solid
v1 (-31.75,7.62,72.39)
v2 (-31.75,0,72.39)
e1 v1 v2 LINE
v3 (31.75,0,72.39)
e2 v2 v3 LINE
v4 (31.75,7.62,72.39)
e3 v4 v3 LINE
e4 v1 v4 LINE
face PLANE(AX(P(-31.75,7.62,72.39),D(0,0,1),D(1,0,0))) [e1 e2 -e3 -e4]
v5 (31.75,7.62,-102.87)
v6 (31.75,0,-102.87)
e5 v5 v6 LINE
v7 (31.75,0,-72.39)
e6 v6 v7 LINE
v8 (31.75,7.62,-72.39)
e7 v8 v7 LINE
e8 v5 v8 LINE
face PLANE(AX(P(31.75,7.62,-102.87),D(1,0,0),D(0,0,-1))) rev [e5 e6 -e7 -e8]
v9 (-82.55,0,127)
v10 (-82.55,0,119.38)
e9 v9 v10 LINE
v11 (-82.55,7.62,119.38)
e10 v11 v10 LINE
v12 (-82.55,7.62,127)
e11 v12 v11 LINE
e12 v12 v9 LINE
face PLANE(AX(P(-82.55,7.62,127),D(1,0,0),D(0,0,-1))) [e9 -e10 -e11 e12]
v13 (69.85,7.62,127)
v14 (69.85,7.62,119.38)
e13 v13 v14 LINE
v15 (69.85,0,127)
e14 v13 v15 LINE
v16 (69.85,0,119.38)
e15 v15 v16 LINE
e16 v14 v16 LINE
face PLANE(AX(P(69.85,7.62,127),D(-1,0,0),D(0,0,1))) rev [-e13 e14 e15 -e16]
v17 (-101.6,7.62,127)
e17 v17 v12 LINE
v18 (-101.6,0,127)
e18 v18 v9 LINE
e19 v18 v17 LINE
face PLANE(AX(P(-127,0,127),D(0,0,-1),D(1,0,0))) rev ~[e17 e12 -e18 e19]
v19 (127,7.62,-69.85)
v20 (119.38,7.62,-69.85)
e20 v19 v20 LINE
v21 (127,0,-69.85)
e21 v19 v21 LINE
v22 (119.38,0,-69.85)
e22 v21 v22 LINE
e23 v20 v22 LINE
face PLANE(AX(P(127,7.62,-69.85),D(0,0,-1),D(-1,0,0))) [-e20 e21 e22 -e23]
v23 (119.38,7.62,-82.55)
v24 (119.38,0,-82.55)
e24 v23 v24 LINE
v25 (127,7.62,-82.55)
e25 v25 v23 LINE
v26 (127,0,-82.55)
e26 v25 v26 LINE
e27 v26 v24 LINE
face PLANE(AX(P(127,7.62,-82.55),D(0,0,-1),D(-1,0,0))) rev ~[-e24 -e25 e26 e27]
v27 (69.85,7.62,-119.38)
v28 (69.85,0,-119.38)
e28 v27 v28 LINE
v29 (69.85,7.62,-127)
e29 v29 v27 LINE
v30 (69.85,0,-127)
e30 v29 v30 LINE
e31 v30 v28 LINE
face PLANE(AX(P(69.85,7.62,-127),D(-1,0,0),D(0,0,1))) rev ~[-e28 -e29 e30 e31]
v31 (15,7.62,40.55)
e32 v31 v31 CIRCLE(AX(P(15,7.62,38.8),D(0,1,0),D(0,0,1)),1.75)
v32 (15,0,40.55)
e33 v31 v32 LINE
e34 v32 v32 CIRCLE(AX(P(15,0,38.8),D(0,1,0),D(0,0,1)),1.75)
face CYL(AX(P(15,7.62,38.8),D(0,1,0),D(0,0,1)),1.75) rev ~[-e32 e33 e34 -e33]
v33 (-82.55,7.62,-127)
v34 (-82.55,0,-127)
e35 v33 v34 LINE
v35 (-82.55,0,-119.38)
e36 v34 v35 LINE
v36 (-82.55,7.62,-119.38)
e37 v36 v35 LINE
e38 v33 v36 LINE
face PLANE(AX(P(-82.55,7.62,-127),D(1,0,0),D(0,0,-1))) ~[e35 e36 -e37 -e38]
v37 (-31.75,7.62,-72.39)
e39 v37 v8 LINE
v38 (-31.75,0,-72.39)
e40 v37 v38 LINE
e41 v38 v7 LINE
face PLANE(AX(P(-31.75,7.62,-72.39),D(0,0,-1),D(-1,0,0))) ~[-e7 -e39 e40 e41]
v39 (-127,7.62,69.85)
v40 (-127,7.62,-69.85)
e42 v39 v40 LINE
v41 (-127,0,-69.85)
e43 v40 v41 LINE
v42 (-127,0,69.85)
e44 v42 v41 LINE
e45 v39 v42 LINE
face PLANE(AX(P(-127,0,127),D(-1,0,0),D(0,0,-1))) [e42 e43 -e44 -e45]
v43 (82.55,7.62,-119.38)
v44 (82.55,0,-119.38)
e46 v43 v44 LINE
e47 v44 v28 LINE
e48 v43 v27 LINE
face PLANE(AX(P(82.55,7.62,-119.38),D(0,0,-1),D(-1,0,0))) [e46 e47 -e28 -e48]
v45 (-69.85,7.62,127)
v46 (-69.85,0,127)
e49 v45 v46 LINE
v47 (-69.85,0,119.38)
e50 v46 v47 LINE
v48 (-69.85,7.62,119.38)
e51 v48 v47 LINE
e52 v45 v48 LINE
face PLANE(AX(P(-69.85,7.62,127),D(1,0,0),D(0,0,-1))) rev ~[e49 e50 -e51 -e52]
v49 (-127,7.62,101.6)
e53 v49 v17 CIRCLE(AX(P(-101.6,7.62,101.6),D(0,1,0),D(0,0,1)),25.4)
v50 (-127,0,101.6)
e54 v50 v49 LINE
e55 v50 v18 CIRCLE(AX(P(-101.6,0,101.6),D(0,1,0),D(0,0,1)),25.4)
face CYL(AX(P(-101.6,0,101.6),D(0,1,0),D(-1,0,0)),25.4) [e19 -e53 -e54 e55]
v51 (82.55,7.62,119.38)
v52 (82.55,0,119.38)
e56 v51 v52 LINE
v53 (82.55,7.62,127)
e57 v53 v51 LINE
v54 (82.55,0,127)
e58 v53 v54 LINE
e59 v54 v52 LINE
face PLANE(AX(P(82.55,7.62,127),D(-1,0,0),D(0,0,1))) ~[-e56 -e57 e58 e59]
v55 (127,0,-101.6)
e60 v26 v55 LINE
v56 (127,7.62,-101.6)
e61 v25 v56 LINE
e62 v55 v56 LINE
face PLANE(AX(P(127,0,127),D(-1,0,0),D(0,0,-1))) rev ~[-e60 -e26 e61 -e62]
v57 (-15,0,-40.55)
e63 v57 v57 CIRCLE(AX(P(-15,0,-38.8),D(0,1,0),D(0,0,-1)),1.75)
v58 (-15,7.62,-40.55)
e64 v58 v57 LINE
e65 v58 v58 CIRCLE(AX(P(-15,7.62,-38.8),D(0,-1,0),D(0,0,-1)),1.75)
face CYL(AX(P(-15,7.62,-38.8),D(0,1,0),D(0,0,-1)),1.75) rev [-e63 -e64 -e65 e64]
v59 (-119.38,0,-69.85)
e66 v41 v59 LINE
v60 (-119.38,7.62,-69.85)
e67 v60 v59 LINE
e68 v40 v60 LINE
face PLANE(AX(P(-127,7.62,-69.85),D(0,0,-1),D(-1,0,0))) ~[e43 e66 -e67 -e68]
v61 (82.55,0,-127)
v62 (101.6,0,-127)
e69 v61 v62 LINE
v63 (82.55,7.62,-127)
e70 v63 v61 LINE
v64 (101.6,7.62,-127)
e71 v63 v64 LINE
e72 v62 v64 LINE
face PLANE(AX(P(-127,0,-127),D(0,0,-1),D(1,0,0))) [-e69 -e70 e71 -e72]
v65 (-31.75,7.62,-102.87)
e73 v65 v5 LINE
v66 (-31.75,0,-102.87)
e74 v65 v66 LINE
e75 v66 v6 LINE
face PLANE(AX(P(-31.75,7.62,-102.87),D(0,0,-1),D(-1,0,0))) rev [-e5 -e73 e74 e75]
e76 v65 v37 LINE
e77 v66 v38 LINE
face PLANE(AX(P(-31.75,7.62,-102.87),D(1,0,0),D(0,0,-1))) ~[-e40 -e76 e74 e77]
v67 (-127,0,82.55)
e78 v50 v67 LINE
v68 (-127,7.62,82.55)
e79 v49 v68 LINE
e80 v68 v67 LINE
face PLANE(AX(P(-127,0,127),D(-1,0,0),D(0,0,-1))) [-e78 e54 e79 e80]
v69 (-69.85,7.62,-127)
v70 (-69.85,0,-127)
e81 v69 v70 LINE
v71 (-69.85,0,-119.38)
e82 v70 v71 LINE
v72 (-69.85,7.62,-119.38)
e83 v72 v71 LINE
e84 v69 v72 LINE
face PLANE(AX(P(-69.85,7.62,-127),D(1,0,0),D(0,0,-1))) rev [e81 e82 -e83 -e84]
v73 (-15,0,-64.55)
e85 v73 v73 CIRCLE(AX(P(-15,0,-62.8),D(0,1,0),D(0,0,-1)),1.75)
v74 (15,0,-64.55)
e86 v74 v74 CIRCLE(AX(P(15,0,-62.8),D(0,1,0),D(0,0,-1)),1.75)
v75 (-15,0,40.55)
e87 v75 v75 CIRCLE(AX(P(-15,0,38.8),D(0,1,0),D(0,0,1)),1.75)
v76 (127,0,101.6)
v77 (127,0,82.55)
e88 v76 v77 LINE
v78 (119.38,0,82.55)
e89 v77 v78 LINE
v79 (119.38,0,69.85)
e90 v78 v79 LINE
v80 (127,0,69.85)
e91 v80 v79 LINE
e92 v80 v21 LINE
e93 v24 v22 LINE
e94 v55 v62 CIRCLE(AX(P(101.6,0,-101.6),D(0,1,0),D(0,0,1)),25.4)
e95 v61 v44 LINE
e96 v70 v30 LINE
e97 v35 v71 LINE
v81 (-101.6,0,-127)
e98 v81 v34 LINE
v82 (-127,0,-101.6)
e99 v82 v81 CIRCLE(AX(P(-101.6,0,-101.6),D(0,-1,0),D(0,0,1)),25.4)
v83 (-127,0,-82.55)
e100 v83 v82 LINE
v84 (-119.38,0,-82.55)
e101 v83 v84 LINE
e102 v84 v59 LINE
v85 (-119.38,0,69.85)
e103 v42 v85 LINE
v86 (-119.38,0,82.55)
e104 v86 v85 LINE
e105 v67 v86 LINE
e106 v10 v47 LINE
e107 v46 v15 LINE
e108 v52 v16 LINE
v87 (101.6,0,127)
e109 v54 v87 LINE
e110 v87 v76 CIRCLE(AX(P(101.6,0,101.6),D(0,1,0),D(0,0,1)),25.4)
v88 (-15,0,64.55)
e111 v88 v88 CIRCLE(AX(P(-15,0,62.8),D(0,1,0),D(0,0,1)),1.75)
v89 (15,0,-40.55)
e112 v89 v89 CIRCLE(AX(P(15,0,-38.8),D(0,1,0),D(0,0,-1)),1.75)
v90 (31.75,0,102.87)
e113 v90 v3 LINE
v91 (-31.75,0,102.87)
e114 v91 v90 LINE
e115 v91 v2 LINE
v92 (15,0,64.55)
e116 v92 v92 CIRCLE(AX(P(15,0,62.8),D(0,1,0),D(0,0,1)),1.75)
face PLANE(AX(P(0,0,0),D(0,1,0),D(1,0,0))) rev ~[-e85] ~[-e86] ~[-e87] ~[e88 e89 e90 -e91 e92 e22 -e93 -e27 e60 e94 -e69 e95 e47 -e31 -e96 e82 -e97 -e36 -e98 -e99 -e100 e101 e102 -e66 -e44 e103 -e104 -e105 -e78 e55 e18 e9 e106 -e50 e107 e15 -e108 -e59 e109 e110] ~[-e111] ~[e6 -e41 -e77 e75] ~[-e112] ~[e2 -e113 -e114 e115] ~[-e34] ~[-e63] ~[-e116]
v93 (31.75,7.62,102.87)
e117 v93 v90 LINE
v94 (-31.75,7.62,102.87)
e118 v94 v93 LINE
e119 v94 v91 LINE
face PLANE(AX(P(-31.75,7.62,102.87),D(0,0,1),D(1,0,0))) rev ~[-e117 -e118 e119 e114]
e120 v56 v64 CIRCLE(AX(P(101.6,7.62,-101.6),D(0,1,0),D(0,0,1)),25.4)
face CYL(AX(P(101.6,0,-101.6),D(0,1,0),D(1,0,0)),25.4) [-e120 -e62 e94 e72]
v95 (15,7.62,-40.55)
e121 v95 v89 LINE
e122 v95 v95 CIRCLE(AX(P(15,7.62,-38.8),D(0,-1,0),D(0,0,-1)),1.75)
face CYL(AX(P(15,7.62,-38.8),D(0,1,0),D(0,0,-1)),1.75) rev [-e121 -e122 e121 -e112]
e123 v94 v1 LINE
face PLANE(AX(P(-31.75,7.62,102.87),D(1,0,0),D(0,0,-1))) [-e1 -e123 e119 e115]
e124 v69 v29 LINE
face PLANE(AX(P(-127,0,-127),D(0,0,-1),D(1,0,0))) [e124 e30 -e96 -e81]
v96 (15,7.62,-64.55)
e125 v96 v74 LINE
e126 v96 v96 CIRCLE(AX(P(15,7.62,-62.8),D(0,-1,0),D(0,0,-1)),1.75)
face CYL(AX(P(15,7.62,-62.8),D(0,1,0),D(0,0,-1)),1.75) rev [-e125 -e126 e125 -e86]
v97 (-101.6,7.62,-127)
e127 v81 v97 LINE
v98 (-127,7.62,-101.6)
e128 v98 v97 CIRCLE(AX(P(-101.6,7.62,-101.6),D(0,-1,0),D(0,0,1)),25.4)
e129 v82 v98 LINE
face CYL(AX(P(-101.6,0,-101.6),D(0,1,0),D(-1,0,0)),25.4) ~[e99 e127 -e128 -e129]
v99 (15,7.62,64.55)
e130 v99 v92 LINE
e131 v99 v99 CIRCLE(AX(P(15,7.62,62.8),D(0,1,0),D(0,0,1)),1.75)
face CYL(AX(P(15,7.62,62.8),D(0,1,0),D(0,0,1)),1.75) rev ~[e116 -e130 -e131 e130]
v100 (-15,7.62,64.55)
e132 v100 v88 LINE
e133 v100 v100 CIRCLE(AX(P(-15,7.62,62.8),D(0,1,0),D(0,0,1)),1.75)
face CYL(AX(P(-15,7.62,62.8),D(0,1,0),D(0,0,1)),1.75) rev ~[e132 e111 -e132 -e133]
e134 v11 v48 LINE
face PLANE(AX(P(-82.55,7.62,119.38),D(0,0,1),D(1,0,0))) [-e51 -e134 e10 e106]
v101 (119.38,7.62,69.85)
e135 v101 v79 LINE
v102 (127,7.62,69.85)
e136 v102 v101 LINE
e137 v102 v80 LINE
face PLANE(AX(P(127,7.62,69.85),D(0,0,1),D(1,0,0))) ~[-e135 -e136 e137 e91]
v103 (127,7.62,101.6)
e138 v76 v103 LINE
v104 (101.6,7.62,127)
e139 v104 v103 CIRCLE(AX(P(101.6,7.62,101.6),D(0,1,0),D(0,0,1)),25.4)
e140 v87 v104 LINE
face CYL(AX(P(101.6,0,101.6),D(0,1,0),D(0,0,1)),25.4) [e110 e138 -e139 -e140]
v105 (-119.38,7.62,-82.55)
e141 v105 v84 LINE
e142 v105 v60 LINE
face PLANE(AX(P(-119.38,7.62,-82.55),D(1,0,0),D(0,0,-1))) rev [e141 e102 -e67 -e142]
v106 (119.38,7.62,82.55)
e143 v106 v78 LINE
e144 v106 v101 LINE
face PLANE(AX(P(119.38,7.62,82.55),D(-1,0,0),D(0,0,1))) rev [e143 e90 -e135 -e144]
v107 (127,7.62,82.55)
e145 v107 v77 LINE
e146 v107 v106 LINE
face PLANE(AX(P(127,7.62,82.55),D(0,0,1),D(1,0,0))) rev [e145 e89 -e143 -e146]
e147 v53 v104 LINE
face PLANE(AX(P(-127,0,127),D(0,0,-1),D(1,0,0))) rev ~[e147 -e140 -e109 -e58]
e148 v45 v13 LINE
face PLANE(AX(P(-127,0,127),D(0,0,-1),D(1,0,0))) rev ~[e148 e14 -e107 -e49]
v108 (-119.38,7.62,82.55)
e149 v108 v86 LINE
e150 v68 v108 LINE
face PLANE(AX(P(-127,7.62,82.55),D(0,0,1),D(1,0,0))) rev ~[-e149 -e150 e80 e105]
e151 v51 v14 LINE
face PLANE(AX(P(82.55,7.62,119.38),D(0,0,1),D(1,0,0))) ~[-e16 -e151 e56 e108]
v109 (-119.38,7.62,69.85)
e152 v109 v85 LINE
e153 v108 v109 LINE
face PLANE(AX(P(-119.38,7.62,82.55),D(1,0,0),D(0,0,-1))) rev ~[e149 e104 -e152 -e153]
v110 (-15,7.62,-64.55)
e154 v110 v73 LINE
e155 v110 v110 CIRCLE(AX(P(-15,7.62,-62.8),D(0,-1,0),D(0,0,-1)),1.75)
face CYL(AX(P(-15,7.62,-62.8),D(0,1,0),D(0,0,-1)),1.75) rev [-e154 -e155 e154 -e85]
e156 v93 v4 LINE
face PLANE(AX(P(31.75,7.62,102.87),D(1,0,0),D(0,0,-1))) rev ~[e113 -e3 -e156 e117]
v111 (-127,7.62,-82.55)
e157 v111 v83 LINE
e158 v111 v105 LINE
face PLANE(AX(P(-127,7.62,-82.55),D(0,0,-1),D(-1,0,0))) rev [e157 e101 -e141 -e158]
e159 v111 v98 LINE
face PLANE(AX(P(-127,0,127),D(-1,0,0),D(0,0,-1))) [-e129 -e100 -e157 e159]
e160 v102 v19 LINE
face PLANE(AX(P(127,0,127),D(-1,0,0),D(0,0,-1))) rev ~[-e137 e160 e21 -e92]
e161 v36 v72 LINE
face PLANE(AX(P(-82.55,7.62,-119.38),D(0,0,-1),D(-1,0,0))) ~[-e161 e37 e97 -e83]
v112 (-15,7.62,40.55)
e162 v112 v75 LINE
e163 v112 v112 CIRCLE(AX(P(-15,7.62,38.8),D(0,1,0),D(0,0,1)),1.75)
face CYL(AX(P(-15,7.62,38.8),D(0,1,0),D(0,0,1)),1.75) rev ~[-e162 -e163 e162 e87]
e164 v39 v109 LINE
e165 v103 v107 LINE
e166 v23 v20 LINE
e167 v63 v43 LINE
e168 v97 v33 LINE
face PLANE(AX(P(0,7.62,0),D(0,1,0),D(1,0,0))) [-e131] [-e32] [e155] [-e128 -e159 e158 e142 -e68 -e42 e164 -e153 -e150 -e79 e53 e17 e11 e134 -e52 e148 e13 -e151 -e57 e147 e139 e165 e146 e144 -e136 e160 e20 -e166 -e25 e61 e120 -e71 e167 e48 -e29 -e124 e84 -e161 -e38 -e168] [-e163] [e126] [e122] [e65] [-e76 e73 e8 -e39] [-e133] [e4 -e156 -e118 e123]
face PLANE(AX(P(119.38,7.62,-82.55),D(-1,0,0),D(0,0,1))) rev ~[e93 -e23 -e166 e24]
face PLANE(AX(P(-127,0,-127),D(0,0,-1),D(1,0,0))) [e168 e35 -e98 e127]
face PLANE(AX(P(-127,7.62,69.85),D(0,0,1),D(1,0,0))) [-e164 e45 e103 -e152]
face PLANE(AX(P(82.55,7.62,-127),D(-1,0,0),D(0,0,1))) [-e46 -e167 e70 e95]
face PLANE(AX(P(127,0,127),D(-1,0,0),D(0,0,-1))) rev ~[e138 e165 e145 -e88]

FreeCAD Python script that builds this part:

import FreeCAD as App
import Part
import Sketcher
from FreeCAD import Vector
Q = App.Units.Quantity


def edges_at(feature, points):
    """Names of the edges that pass closest to the given points."""
    edges = feature.Shape.Edges
    near = lambda p: min(range(len(edges)), key=lambda i: edges[i].distToShape(Part.Vertex(*p))[0])
    return sorted({f"Edge{near(p) + 1}" for p in points})


def add_polygon(sketch, points):
    """Adds a closed chain of lines whose ends are joined by coincident constraints."""
    first, n = sketch.GeometryCount, len(points)
    for a, b in zip(points, points[1:] + points[:1]):
        sketch.addGeometry(Part.LineSegment(App.Vector(*a, 0), App.Vector(*b, 0)), False)
    for i in range(n):
        sketch.addConstraint(Sketcher.Constraint("Coincident", first + i, 2, first + (i + 1) % n, 1))

doc = App.newDocument("Part")
body = doc.addObject("PartDesign::Body", "Body")

sketch1 = body.newObject("Sketcher::SketchObject", "Sketch")
sketch1.AttachmentSupport = (doc.getObject("XZ_Plane"), [""])
sketch1.MapMode = "FlatFace"
add_polygon(sketch1, [(-127, -127), (-127, 127), (127, 127), (127, -127)])
sketch1.addConstraint([
    Sketcher.Constraint("Vertical", 0),
    Sketcher.Constraint("Horizontal", 1),
    Sketcher.Constraint("Vertical", 2),
    Sketcher.Constraint("Horizontal", 3),
    Sketcher.Constraint("Symmetric", 0, 2, 2, 2, -1, 1),
    Sketcher.Constraint("Equal", 3, 0),
    Sketcher.Constraint("DistanceX", 1, 1, 1, 2, Q("10 in")),
])
pad1 = body.newObject("PartDesign::Pad", "Pad")
pad1.Profile = sketch1
pad1.Length = Q("0.3 in")
pad1.Reversed = True
doc.recompute()

fillet = body.newObject("PartDesign::Fillet", "Fillet")
fillet.Base = (pad1, edges_at(pad1, [
    (127, 3.81, 127),
    (-127, 3.81, 127),
    (-127, 3.81, -127),
    (127, 3.81, -127),
]))
fillet.Radius = Q("1 in")

sketch2 = body.newObject("Sketcher::SketchObject", "Sketch001")
sketch2.AttachmentSupport = (doc.getObject("XZ_Plane"), [""])
sketch2.MapMode = "FlatFace"
sketch2.AttachmentOffset = App.Placement(Vector(0, 0, -0.3 * 25.4), App.Rotation())
sketch2.addGeometry([
    Part.Circle(Vector(15, 38.8, 0), Vector(0, 0, 1), 1.8),
    Part.Circle(Vector(15, 62.8, 0), Vector(0, 0, 1), 1.8),
    Part.Circle(Vector(-15, 62.8, 0), Vector(0, 0, 1), 1.8),
    Part.Circle(Vector(-15, 38.8, 0), Vector(0, 0, 1), 1.8),
], False)
sketch2.addConstraint([
    Sketcher.Constraint("Equal", 0, 1),
    Sketcher.Constraint("Equal", 1, 2),
    Sketcher.Constraint("Equal", 2, 3),
    Sketcher.Constraint("Symmetric", 1, 3, 2, 3, -2),
    Sketcher.Constraint("Symmetric", 0, 3, 3, 3, -2),
    Sketcher.Constraint("Vertical", 0, 3, 1, 3),
    Sketcher.Constraint("Diameter", 0, Q("3.5 mm")),
    Sketcher.Constraint("DistanceX", -1, 1, 0, 3, Q("15 mm")),
    Sketcher.Constraint("DistanceY", -1, 1, 0, 3, Q("38.8 mm")),
    Sketcher.Constraint("DistanceY", -1, 1, 1, 3, Q("62.8 mm")),
])
pocket1 = body.newObject("PartDesign::Pocket", "Pocket")
pocket1.Profile = sketch2
pocket1.Type = "ThroughAll"
pocket1.Reversed = True
doc.recompute()

mirrored = body.newObject("PartDesign::Mirrored", "Mirrored")
mirrored.Originals = [pocket1]
mirrored.MirrorPlane = (doc.getObject("XY_Plane"), [""])
body.Tip = mirrored

sketch3 = body.newObject("Sketcher::SketchObject", "Sketch002")
sketch3.AttachmentSupport = (doc.getObject("XZ_Plane"), [""])
sketch3.MapMode = "FlatFace"
sketch3.AttachmentOffset = App.Placement(Vector(0, 0, -0.3 * 25.4), App.Rotation())
add_polygon(sketch3, [(-32, 72), (-32, 103), (32, 103), (32, 72)])
sketch3.addConstraint([
    Sketcher.Constraint("Vertical", 0),
    Sketcher.Constraint("Horizontal", 1),
    Sketcher.Constraint("Vertical", 2),
    Sketcher.Constraint("Horizontal", 3),
    Sketcher.Constraint("DistanceX", 1, 1, 1, 2, Q("2.5 in")),
    Sketcher.Constraint("DistanceY", 0, 1, 0, 2, Q("1.2 in")),
    Sketcher.Constraint("DistanceX", 0, 2, -1, 1, Q("1.25 in")),
    Sketcher.Constraint("DistanceY", -1, 1, 0, 2, Q("4.05 in")),
])
pocket2 = body.newObject("PartDesign::Pocket", "Pocket001")
pocket2.Profile = sketch3
pocket2.Type = "ThroughAll"
pocket2.Reversed = True
doc.recompute()

mirrored2 = body.newObject("PartDesign::Mirrored", "Mirrored001")
mirrored2.Originals = [pocket2]
mirrored2.MirrorPlane = (doc.getObject("XY_Plane"), [""])
body.Tip = mirrored2

sketch4 = body.newObject("Sketcher::SketchObject", "Sketch003")
sketch4.AttachmentSupport = (doc.getObject("XZ_Plane"), [""])
sketch4.MapMode = "FlatFace"
sketch4.AttachmentOffset = App.Placement(Vector(0, 0, -0.3 * 25.4), App.Rotation())
add_polygon(sketch4, [(-83, 119), (-83, 127), (-70, 127), (-70, 119)])
sketch4.addConstraint([
    Sketcher.Constraint("Vertical", 0),
    Sketcher.Constraint("Horizontal", 1),
    Sketcher.Constraint("Vertical", 2),
    Sketcher.Constraint("Horizontal", 3),
    Sketcher.Constraint("DistanceX", 1, 1, 1, 2, Q("0.5 in")),
    Sketcher.Constraint("DistanceY", 0, 1, 0, 2, Q("0.3 in")),
    Sketcher.Constraint("DistanceY", -1, 1, 0, 2, Q("5 in")),
    Sketcher.Constraint("DistanceX", 0, 2, -1, 1, Q("3.25 in")),
])
pocket3 = body.newObject("PartDesign::Pocket", "Pocket002")
pocket3.Profile = sketch4
pocket3.Type = "ThroughAll"
pocket3.Reversed = True
doc.recompute()

mirrored3 = body.newObject("PartDesign::Mirrored", "Mirrored002")
mirrored3.Originals = [pocket3]
mirrored3.MirrorPlane = (doc.getObject("XY_Plane"), [""])
body.Tip = mirrored3
doc.recompute()

mirrored4 = body.newObject("PartDesign::Mirrored", "Mirrored003")
mirrored4.Originals = [pocket3]
mirrored4.MirrorPlane = (doc.getObject("YZ_Plane"), [""])
body.Tip = mirrored4

sketch5 = body.newObject("Sketcher::SketchObject", "Sketch004")
sketch5.AttachmentSupport = (doc.getObject("XZ_Plane"), [""])
sketch5.MapMode = "FlatFace"
sketch5.AttachmentOffset = App.Placement(Vector(0, 0, -0.3 * 25.4), App.Rotation())
add_polygon(sketch5, [(83, -119), (83, -127), (70, -127), (70, -119)])
sketch5.addConstraint([
    Sketcher.Constraint("Vertical", 0),
    Sketcher.Constraint("Horizontal", 1),
    Sketcher.Constraint("Vertical", 2),
    Sketcher.Constraint("Horizontal", 3),
    Sketcher.Constraint("DistanceX", 1, 2, 1, 1, Q("0.5 in")),
    Sketcher.Constraint("DistanceY", 0, 2, 0, 1, Q("0.3 in")),
    Sketcher.Constraint("DistanceY", 0, 2, -1, 1, Q("5 in")),
    Sketcher.Constraint("DistanceX", -1, 1, 0, 2, Q("3.25 in")),
])
pocket4 = body.newObject("PartDesign::Pocket", "Pocket003")
pocket4.Profile = sketch5
pocket4.Type = "ThroughAll"
pocket4.Reversed = True

sketch6 = body.newObject("Sketcher::SketchObject", "Sketch005")
sketch6.AttachmentSupport = (doc.getObject("XZ_Plane"), [""])
sketch6.MapMode = "FlatFace"
sketch6.AttachmentOffset = App.Placement(Vector(0, 0, -0.3 * 25.4), App.Rotation())
add_polygon(sketch6, [(-127, 70), (-127, 83), (-119, 83), (-119, 70)])
sketch6.addConstraint([
    Sketcher.Constraint("Vertical", 0),
    Sketcher.Constraint("Horizontal", 1),
    Sketcher.Constraint("Vertical", 2),
    Sketcher.Constraint("Horizontal", 3),
    Sketcher.Constraint("DistanceX", 1, 1, 1, 2, Q("0.3 in")),
    Sketcher.Constraint("DistanceY", 0, 1, 0, 2, Q("0.5 in")),
    Sketcher.Constraint("DistanceX", 0, 2, -1, 1, Q("5 in")),
    Sketcher.Constraint("DistanceY", -1, 1, 0, 2, Q("3.25 in")),
])
pocket5 = body.newObject("PartDesign::Pocket", "Pocket004")
pocket5.Profile = sketch6
pocket5.Type = "ThroughAll"
pocket5.Reversed = True
doc.recompute()

mirrored5 = body.newObject("PartDesign::Mirrored", "Mirrored004")
mirrored5.Originals = [pocket5]
mirrored5.MirrorPlane = (doc.getObject("XY_Plane"), [""])
body.Tip = mirrored5
doc.recompute()

mirrored6 = body.newObject("PartDesign::Mirrored", "Mirrored005")
mirrored6.Originals = [pocket5]
mirrored6.MirrorPlane = (doc.getObject("YZ_Plane"), [""])
body.Tip = mirrored6

sketch7 = body.newObject("Sketcher::SketchObject", "Sketch006")
sketch7.AttachmentSupport = (doc.getObject("XZ_Plane"), [""])
sketch7.MapMode = "FlatFace"
sketch7.AttachmentOffset = App.Placement(Vector(0, 0, -0.3 * 25.4), App.Rotation())
add_polygon(sketch7, [(127, -70), (127, -83), (119, -83), (119, -70)])
sketch7.addConstraint([
    Sketcher.Constraint("Vertical", 0),
    Sketcher.Constraint("Horizontal", 1),
    Sketcher.Constraint("Vertical", 2),
    Sketcher.Constraint("Horizontal", 3),
    Sketcher.Constraint("DistanceX", 1, 2, 1, 1, Q("0.3 in")),
    Sketcher.Constraint("DistanceY", 0, 2, 0, 1, Q("0.5 in")),
    Sketcher.Constraint("DistanceX", -1, 1, 0, 2, Q("5 in")),
    Sketcher.Constraint("DistanceY", 0, 2, -1, 1, Q("3.25 in")),
])
pocket6 = body.newObject("PartDesign::Pocket", "Pocket005")
pocket6.Profile = sketch7
pocket6.Type = "ThroughAll"
pocket6.Reversed = True

doc.recompute()
